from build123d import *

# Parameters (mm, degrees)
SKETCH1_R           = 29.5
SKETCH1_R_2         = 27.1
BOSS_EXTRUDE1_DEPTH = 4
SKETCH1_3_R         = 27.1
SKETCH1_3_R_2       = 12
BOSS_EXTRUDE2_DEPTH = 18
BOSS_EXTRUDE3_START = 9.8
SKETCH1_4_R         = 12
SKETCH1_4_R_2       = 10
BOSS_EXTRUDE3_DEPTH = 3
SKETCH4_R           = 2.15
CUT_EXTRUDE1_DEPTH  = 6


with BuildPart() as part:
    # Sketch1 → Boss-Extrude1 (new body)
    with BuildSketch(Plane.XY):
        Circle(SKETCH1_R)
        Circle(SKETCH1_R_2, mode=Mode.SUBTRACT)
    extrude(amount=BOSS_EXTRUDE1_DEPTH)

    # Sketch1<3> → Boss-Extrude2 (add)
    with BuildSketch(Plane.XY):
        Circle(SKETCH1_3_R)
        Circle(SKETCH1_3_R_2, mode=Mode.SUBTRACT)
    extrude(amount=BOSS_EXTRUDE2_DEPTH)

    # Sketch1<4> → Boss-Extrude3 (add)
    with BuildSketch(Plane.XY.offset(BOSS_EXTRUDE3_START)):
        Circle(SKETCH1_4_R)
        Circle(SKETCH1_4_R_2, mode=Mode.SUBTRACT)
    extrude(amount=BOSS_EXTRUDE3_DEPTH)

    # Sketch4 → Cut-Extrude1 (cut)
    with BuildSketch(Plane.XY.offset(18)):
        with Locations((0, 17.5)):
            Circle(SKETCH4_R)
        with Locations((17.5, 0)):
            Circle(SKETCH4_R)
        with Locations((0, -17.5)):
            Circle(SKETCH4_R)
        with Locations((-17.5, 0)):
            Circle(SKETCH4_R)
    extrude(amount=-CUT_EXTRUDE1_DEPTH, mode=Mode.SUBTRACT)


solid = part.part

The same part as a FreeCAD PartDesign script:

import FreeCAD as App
import Part
import Sketcher

doc = App.newDocument("Part")
body = doc.addObject("PartDesign::Body", "Body")

sketch1 = body.newObject("Sketcher::SketchObject", "Sketch")
sketch1.AttachmentSupport = (doc.getObject("XY_Plane"), [""])
sketch1.MapMode = "FlatFace"
sketch1.addGeometry([
    Part.Circle(App.Vector(0, 0, 0), App.Vector(0, 0, 1), 30),
    Part.Circle(App.Vector(0, 0, 0), App.Vector(0, 0, 1), 27),
], False)
sketch1.addConstraint([
    Sketcher.Constraint("Coincident", 0, 3, -1, 1),
    Sketcher.Constraint("Coincident", 1, 3, -1, 1),
    Sketcher.Constraint("Diameter", 0, 59.0),
    Sketcher.Constraint("Diameter", 1, 54.2),
])
pad1 = body.newObject("PartDesign::Pad", "Pad")
pad1.Profile = sketch1
pad1.Length = 4

sketch2 = body.newObject("Sketcher::SketchObject", "Sketch001")
sketch2.AttachmentSupport = (doc.getObject("XY_Plane"), [""])
sketch2.MapMode = "FlatFace"
sketch2.addGeometry([
    Part.Circle(App.Vector(0, 0, 0), App.Vector(0, 0, 1), 27),
    Part.Circle(App.Vector(0, 0, 0), App.Vector(0, 0, 1), 12),
], False)
sketch2.addConstraint([
    Sketcher.Constraint("Coincident", 0, 3, -1, 1),
    Sketcher.Constraint("Coincident", 1, 3, -1, 1),
    Sketcher.Constraint("Diameter", 1, 24.0),
    Sketcher.Constraint("Diameter", 0, 54.2),
])
pad2 = body.newObject("PartDesign::Pad", "Pad001")
pad2.Profile = sketch2
pad2.Length = 18

sketch3 = body.newObject("Sketcher::SketchObject", "Sketch002")
sketch3.AttachmentSupport = (doc.getObject("XY_Plane"), [""])
sketch3.MapMode = "FlatFace"
sketch3.AttachmentOffset = App.Placement(App.Vector(0, 0, 9.8), App.Rotation())
sketch3.addGeometry([
    Part.Circle(App.Vector(0, 0, 0), App.Vector(0, 0, 1), 12),
    Part.Circle(App.Vector(0, 0, 0), App.Vector(0, 0, 1), 10),
], False)
sketch3.addConstraint([
    Sketcher.Constraint("Coincident", 0, 3, -1, 1),
    Sketcher.Constraint("Coincident", 1, 3, -1, 1),
    Sketcher.Constraint("Diameter", 0, 24.0),
    Sketcher.Constraint("Diameter", 1, 20.0),
])
pad3 = body.newObject("PartDesign::Pad", "Pad002")
pad3.Profile = sketch3
pad3.Length = 3

sketch4 = body.newObject("Sketcher::SketchObject", "Sketch003")
sketch4.AttachmentSupport = (doc.getObject("XY_Plane"), [""])
sketch4.MapMode = "FlatFace"
sketch4.AttachmentOffset = App.Placement(App.Vector(0, 0, 18), App.Rotation())
sketch4.addGeometry([
    Part.Circle(App.Vector(0, 17.5, 0), App.Vector(0, 0, 1), 2.1),
    Part.Circle(App.Vector(17.5, 0, 0), App.Vector(0, 0, 1), 2.1),
    Part.Circle(App.Vector(0, -17.5, 0), App.Vector(0, 0, 1), 2.1),
    Part.Circle(App.Vector(-17.5, 0, 0), App.Vector(0, 0, 1), 2.1),
], False)
sketch4.addConstraint([
    Sketcher.Constraint("Equal", 0, 1),
    Sketcher.Constraint("Equal", 1, 2),
    Sketcher.Constraint("Equal", 2, 3),
    Sketcher.Constraint("Symmetric", 0, 3, 2, 3, -1, 1),
    Sketcher.Constraint("Symmetric", 1, 3, 3, 3, -1, 1),
    Sketcher.Constraint("PointOnObject", 0, 3, -2),
    Sketcher.Constraint("PointOnObject", 1, 3, -1),
    Sketcher.Constraint("Diameter", 0, 4.3),
    Sketcher.Constraint("DistanceY", 2, 3, 0, 3, 35.0),
    Sketcher.Constraint("DistanceX", 3, 3, 1, 3, 35.0),
])
pocket1 = body.newObject("PartDesign::Pocket", "Pocket")
pocket1.Profile = sketch4
pocket1.Length = 6

doc.recompute()
